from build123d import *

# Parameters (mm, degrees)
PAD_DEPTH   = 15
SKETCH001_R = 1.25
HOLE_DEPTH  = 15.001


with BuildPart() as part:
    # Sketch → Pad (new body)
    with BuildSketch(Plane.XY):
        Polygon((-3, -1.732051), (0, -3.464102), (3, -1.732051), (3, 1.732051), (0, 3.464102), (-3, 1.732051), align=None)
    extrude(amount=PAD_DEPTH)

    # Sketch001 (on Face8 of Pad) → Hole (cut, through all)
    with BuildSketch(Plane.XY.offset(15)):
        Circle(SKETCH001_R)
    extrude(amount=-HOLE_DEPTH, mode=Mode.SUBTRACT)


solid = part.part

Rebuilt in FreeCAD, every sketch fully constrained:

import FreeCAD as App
import Part
import Sketcher

V = App.Vector
Q = App.Units.Quantity

doc = App.newDocument("Part")
body = doc.addObject("PartDesign::Body", "Body")

sketch1 = body.newObject("Sketcher::SketchObject", "Sketch")
sketch1.AttachmentSupport = (doc.getObject("XY_Plane"), [""])
sketch1.MapMode = "FlatFace"
sketch1.addGeometry(Part.LineSegment(V(-3, -1.732051, 0), V(0, -3.464102, 0)), False)
sketch1.addGeometry(Part.LineSegment(V(0, -3.464102, 0), V(3, -1.732051, 0)), False)
sketch1.addGeometry(Part.LineSegment(V(3, -1.732051, 0), V(3, 1.732051, 0)), False)
sketch1.addGeometry(Part.LineSegment(V(3, 1.732051, 0), V(0, 3.464102, 0)), False)
sketch1.addGeometry(Part.LineSegment(V(0, 3.464102, 0), V(-3, 1.732051, 0)), False)
sketch1.addGeometry(Part.LineSegment(V(-3, 1.732051, 0), V(-3, -1.732051, 0)), False)
sketch1.addConstraint(Sketcher.Constraint("Coincident", 0, 2, 1, 1))
sketch1.addConstraint(Sketcher.Constraint("Coincident", 1, 2, 2, 1))
sketch1.addConstraint(Sketcher.Constraint("Coincident", 2, 2, 3, 1))
sketch1.addConstraint(Sketcher.Constraint("Coincident", 3, 2, 4, 1))
sketch1.addConstraint(Sketcher.Constraint("Coincident", 4, 2, 5, 1))
sketch1.addConstraint(Sketcher.Constraint("Coincident", 5, 2, 0, 1))
sketch1.addConstraint(Sketcher.Constraint("Vertical", 2))
sketch1.addConstraint(Sketcher.Constraint("Vertical", 5))
sketch1.addConstraint(Sketcher.Constraint("Symmetric", 0, 2, 3, 2, -1, 1))
sketch1.addConstraint(Sketcher.Constraint("Symmetric", 1, 2, 4, 2, -1, 1))
sketch1.addConstraint(Sketcher.Constraint("PointOnObject", 0, 2, -2))
sketch1.addConstraint(Sketcher.Constraint("Parallel", 0, 3))
sketch1.addConstraint(Sketcher.Constraint("Horizontal", 2, 2, 4, 2))
sketch1.addConstraint(Sketcher.Constraint("Angle", 0, Q("-30.000003 deg")))
sketch1.addConstraint(Sketcher.Constraint("DistanceX", -1, 1, 1, 2, Q("3 mm")))
sketch1.addConstraint(Sketcher.Constraint("DistanceY", 2, 1, 2, 2, Q("3.464102 mm")))
pad1 = body.newObject("PartDesign::Pad", "Pad")
pad1.Profile = sketch1
pad1.Length = 15

sketch2 = body.newObject("Sketcher::SketchObject", "Sketch001")
sketch2.AttachmentSupport = (doc.getObject("XY_Plane"), [""])
sketch2.MapMode = "FlatFace"
sketch2.AttachmentOffset = App.Placement(V(0, 0, 15), App.Rotation())
sketch2.addGeometry(Part.Circle(V(0, 0, 0), V(0, 0, 1), 1.25), False)
sketch2.addConstraint(Sketcher.Constraint("Coincident", 0, 3, -1, 1))
sketch2.addConstraint(Sketcher.Constraint("Diameter", 0, Q("2.5 mm")))
pocket1 = body.newObject("PartDesign::Pocket", "Pocket")
pocket1.Profile = sketch2
pocket1.Type = "ThroughAll"

doc.recompute()
